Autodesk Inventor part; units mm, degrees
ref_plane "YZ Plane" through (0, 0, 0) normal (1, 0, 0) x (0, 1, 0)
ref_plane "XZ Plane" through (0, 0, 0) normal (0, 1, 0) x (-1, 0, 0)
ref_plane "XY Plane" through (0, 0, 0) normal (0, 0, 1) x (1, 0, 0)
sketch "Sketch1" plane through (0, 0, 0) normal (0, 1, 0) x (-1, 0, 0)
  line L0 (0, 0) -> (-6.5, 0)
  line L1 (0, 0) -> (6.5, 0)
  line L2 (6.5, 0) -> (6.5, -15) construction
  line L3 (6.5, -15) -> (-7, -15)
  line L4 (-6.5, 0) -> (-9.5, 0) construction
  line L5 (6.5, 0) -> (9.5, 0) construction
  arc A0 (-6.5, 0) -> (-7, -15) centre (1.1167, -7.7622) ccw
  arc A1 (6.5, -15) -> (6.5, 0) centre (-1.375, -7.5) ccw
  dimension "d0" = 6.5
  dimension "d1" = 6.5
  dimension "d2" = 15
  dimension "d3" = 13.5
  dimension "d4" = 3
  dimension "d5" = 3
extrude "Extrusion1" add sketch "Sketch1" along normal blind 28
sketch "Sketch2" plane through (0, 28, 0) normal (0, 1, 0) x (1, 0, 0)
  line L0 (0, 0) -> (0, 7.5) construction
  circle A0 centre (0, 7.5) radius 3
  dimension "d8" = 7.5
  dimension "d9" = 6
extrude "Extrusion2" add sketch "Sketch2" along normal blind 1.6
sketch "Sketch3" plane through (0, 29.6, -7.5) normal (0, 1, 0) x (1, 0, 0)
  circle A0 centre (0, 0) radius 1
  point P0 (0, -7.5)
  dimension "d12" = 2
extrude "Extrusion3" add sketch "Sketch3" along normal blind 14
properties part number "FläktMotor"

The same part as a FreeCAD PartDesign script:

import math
import FreeCAD as App
import Part
import Sketcher
from FreeCAD import Vector
Q = App.Units.Quantity

doc = App.newDocument("Part")
params = doc.addObject("Spreadsheet::Sheet", "Params")
for row, (alias, value) in enumerate([
    ("sketch1_width", "13.5 mm"),
    ("pad1_length", "28 mm"),
    ("sketch2_diameter", "6 mm"),
    ("pad2_length", "1.6 mm"),
    ("sketch3_diameter", "2 mm"),
    ("pad3_length", "14 mm"),
], start=1):
    params.set(f"A{row}", alias)
    params.set(f"B{row}", "=" + value)
    params.setAlias(f"B{row}", alias)

body = doc.addObject("PartDesign::Body", "Body")

# Sketch on XZ plane
sketch1 = doc.addObject("Sketcher::SketchObject", "Sketch")
body.addObject(sketch1)
sketch1.AttachmentSupport = (doc.XZ_Plane, [""])
sketch1.MapMode = "FlatFace"
sketch1.addGeometry(Part.LineSegment(Vector(-6.5, 0, 0), Vector(6.5, 0, 0)), False)
sketch1.addGeometry(Part.ArcOfCircle(Part.Circle(Vector(-1.1167, -7.7622, 0), Vector(0, 0, 1), 10.875011), math.radians(-41.723933), math.radians(45.54206)), False)
sketch1.addGeometry(Part.LineSegment(Vector(7, -15, 0), Vector(-6.5, -15, 0)), False)
sketch1.addGeometry(Part.ArcOfCircle(Part.Circle(Vector(1.375, -7.5, 0), Vector(0, 0, 1), 10.875), math.radians(136.397181), math.radians(223.602819)), False)
sketch1.addConstraint(Sketcher.Constraint("Coincident", 0, 2, 1, 2))
sketch1.addConstraint(Sketcher.Constraint("Coincident", 1, 1, 2, 1))
sketch1.addConstraint(Sketcher.Constraint("Coincident", 2, 2, 3, 2))
sketch1.addConstraint(Sketcher.Constraint("Coincident", 3, 1, 0, 1))
sketch1.addConstraint(Sketcher.Constraint("Horizontal", 0))
sketch1.addConstraint(Sketcher.Constraint("Horizontal", 2))
sketch1.addConstraint(Sketcher.Constraint("Equal", 1, 3))
sketch1.addConstraint(Sketcher.Constraint("Symmetric", 0, 2, 3, 1, -1, 1))
sketch1.addConstraint(Sketcher.Constraint("Vertical", 2, 2, 3, 1))
sketch1.addConstraint(Sketcher.Constraint("DistanceX", 2, 2, 2, 1, Q("13.5 mm")))
sketch1.addConstraint(Sketcher.Constraint("DistanceY", 1, 1, -1, 1, Q("15 mm")))
sketch1.addConstraint(Sketcher.Constraint("DistanceX", -1, 1, 0, 2, Q("6.5 mm")))
sketch1.addConstraint(Sketcher.Constraint("Radius", 1, Q("10.875 mm")))
sketch1.setExpression("Constraints[9]", "Params.sketch1_width")
pad1 = doc.addObject("PartDesign::Pad", "Pad")
body.addObject(pad1)
pad1.Profile = sketch1
pad1.setExpression("Length", "Params.pad1_length")
pad1.Reversed = True

# Sketch on XZ plane
sketch2 = doc.addObject("Sketcher::SketchObject", "Sketch001")
body.addObject(sketch2)
sketch2.AttachmentSupport = (doc.XZ_Plane, [""])
sketch2.MapMode = "FlatFace"
sketch2.AttachmentOffset = App.Placement(Vector(0, 0, -28), App.Rotation())
sketch2.addGeometry(Part.Circle(Vector(0, -7.5, 0), Vector(0, 0, 1), 3), False)
sketch2.addConstraint(Sketcher.Constraint("PointOnObject", 0, 3, -2))
sketch2.addConstraint(Sketcher.Constraint("Diameter", 0, Q("6 mm")))
sketch2.addConstraint(Sketcher.Constraint("DistanceY", 0, 3, -1, 1, Q("7.5 mm")))
sketch2.setExpression("Constraints[1]", "Params.sketch2_diameter")
pad2 = doc.addObject("PartDesign::Pad", "Pad001")
body.addObject(pad2)
pad2.Profile = sketch2
pad2.setExpression("Length", "Params.pad2_length")
pad2.Reversed = True

# Sketch on XZ plane
sketch3 = doc.addObject("Sketcher::SketchObject", "Sketch002")
body.addObject(sketch3)
sketch3.AttachmentSupport = (doc.XZ_Plane, [""])
sketch3.MapMode = "FlatFace"
sketch3.AttachmentOffset = App.Placement(Vector(0, 0, -29.6), App.Rotation())
sketch3.addGeometry(Part.Circle(Vector(0, -7.5, 0), Vector(0, 0, 1), 1), False)
sketch3.addConstraint(Sketcher.Constraint("PointOnObject", 0, 3, -2))
sketch3.addConstraint(Sketcher.Constraint("Diameter", 0, Q("2 mm")))
sketch3.addConstraint(Sketcher.Constraint("DistanceY", 0, 3, -1, 1, Q("7.5 mm")))
sketch3.setExpression("Constraints[1]", "Params.sketch3_diameter")
pad3 = doc.addObject("PartDesign::Pad", "Pad002")
body.addObject(pad3)
pad3.Profile = sketch3
pad3.setExpression("Length", "Params.pad3_length")
pad3.Reversed = True

doc.recompute()
